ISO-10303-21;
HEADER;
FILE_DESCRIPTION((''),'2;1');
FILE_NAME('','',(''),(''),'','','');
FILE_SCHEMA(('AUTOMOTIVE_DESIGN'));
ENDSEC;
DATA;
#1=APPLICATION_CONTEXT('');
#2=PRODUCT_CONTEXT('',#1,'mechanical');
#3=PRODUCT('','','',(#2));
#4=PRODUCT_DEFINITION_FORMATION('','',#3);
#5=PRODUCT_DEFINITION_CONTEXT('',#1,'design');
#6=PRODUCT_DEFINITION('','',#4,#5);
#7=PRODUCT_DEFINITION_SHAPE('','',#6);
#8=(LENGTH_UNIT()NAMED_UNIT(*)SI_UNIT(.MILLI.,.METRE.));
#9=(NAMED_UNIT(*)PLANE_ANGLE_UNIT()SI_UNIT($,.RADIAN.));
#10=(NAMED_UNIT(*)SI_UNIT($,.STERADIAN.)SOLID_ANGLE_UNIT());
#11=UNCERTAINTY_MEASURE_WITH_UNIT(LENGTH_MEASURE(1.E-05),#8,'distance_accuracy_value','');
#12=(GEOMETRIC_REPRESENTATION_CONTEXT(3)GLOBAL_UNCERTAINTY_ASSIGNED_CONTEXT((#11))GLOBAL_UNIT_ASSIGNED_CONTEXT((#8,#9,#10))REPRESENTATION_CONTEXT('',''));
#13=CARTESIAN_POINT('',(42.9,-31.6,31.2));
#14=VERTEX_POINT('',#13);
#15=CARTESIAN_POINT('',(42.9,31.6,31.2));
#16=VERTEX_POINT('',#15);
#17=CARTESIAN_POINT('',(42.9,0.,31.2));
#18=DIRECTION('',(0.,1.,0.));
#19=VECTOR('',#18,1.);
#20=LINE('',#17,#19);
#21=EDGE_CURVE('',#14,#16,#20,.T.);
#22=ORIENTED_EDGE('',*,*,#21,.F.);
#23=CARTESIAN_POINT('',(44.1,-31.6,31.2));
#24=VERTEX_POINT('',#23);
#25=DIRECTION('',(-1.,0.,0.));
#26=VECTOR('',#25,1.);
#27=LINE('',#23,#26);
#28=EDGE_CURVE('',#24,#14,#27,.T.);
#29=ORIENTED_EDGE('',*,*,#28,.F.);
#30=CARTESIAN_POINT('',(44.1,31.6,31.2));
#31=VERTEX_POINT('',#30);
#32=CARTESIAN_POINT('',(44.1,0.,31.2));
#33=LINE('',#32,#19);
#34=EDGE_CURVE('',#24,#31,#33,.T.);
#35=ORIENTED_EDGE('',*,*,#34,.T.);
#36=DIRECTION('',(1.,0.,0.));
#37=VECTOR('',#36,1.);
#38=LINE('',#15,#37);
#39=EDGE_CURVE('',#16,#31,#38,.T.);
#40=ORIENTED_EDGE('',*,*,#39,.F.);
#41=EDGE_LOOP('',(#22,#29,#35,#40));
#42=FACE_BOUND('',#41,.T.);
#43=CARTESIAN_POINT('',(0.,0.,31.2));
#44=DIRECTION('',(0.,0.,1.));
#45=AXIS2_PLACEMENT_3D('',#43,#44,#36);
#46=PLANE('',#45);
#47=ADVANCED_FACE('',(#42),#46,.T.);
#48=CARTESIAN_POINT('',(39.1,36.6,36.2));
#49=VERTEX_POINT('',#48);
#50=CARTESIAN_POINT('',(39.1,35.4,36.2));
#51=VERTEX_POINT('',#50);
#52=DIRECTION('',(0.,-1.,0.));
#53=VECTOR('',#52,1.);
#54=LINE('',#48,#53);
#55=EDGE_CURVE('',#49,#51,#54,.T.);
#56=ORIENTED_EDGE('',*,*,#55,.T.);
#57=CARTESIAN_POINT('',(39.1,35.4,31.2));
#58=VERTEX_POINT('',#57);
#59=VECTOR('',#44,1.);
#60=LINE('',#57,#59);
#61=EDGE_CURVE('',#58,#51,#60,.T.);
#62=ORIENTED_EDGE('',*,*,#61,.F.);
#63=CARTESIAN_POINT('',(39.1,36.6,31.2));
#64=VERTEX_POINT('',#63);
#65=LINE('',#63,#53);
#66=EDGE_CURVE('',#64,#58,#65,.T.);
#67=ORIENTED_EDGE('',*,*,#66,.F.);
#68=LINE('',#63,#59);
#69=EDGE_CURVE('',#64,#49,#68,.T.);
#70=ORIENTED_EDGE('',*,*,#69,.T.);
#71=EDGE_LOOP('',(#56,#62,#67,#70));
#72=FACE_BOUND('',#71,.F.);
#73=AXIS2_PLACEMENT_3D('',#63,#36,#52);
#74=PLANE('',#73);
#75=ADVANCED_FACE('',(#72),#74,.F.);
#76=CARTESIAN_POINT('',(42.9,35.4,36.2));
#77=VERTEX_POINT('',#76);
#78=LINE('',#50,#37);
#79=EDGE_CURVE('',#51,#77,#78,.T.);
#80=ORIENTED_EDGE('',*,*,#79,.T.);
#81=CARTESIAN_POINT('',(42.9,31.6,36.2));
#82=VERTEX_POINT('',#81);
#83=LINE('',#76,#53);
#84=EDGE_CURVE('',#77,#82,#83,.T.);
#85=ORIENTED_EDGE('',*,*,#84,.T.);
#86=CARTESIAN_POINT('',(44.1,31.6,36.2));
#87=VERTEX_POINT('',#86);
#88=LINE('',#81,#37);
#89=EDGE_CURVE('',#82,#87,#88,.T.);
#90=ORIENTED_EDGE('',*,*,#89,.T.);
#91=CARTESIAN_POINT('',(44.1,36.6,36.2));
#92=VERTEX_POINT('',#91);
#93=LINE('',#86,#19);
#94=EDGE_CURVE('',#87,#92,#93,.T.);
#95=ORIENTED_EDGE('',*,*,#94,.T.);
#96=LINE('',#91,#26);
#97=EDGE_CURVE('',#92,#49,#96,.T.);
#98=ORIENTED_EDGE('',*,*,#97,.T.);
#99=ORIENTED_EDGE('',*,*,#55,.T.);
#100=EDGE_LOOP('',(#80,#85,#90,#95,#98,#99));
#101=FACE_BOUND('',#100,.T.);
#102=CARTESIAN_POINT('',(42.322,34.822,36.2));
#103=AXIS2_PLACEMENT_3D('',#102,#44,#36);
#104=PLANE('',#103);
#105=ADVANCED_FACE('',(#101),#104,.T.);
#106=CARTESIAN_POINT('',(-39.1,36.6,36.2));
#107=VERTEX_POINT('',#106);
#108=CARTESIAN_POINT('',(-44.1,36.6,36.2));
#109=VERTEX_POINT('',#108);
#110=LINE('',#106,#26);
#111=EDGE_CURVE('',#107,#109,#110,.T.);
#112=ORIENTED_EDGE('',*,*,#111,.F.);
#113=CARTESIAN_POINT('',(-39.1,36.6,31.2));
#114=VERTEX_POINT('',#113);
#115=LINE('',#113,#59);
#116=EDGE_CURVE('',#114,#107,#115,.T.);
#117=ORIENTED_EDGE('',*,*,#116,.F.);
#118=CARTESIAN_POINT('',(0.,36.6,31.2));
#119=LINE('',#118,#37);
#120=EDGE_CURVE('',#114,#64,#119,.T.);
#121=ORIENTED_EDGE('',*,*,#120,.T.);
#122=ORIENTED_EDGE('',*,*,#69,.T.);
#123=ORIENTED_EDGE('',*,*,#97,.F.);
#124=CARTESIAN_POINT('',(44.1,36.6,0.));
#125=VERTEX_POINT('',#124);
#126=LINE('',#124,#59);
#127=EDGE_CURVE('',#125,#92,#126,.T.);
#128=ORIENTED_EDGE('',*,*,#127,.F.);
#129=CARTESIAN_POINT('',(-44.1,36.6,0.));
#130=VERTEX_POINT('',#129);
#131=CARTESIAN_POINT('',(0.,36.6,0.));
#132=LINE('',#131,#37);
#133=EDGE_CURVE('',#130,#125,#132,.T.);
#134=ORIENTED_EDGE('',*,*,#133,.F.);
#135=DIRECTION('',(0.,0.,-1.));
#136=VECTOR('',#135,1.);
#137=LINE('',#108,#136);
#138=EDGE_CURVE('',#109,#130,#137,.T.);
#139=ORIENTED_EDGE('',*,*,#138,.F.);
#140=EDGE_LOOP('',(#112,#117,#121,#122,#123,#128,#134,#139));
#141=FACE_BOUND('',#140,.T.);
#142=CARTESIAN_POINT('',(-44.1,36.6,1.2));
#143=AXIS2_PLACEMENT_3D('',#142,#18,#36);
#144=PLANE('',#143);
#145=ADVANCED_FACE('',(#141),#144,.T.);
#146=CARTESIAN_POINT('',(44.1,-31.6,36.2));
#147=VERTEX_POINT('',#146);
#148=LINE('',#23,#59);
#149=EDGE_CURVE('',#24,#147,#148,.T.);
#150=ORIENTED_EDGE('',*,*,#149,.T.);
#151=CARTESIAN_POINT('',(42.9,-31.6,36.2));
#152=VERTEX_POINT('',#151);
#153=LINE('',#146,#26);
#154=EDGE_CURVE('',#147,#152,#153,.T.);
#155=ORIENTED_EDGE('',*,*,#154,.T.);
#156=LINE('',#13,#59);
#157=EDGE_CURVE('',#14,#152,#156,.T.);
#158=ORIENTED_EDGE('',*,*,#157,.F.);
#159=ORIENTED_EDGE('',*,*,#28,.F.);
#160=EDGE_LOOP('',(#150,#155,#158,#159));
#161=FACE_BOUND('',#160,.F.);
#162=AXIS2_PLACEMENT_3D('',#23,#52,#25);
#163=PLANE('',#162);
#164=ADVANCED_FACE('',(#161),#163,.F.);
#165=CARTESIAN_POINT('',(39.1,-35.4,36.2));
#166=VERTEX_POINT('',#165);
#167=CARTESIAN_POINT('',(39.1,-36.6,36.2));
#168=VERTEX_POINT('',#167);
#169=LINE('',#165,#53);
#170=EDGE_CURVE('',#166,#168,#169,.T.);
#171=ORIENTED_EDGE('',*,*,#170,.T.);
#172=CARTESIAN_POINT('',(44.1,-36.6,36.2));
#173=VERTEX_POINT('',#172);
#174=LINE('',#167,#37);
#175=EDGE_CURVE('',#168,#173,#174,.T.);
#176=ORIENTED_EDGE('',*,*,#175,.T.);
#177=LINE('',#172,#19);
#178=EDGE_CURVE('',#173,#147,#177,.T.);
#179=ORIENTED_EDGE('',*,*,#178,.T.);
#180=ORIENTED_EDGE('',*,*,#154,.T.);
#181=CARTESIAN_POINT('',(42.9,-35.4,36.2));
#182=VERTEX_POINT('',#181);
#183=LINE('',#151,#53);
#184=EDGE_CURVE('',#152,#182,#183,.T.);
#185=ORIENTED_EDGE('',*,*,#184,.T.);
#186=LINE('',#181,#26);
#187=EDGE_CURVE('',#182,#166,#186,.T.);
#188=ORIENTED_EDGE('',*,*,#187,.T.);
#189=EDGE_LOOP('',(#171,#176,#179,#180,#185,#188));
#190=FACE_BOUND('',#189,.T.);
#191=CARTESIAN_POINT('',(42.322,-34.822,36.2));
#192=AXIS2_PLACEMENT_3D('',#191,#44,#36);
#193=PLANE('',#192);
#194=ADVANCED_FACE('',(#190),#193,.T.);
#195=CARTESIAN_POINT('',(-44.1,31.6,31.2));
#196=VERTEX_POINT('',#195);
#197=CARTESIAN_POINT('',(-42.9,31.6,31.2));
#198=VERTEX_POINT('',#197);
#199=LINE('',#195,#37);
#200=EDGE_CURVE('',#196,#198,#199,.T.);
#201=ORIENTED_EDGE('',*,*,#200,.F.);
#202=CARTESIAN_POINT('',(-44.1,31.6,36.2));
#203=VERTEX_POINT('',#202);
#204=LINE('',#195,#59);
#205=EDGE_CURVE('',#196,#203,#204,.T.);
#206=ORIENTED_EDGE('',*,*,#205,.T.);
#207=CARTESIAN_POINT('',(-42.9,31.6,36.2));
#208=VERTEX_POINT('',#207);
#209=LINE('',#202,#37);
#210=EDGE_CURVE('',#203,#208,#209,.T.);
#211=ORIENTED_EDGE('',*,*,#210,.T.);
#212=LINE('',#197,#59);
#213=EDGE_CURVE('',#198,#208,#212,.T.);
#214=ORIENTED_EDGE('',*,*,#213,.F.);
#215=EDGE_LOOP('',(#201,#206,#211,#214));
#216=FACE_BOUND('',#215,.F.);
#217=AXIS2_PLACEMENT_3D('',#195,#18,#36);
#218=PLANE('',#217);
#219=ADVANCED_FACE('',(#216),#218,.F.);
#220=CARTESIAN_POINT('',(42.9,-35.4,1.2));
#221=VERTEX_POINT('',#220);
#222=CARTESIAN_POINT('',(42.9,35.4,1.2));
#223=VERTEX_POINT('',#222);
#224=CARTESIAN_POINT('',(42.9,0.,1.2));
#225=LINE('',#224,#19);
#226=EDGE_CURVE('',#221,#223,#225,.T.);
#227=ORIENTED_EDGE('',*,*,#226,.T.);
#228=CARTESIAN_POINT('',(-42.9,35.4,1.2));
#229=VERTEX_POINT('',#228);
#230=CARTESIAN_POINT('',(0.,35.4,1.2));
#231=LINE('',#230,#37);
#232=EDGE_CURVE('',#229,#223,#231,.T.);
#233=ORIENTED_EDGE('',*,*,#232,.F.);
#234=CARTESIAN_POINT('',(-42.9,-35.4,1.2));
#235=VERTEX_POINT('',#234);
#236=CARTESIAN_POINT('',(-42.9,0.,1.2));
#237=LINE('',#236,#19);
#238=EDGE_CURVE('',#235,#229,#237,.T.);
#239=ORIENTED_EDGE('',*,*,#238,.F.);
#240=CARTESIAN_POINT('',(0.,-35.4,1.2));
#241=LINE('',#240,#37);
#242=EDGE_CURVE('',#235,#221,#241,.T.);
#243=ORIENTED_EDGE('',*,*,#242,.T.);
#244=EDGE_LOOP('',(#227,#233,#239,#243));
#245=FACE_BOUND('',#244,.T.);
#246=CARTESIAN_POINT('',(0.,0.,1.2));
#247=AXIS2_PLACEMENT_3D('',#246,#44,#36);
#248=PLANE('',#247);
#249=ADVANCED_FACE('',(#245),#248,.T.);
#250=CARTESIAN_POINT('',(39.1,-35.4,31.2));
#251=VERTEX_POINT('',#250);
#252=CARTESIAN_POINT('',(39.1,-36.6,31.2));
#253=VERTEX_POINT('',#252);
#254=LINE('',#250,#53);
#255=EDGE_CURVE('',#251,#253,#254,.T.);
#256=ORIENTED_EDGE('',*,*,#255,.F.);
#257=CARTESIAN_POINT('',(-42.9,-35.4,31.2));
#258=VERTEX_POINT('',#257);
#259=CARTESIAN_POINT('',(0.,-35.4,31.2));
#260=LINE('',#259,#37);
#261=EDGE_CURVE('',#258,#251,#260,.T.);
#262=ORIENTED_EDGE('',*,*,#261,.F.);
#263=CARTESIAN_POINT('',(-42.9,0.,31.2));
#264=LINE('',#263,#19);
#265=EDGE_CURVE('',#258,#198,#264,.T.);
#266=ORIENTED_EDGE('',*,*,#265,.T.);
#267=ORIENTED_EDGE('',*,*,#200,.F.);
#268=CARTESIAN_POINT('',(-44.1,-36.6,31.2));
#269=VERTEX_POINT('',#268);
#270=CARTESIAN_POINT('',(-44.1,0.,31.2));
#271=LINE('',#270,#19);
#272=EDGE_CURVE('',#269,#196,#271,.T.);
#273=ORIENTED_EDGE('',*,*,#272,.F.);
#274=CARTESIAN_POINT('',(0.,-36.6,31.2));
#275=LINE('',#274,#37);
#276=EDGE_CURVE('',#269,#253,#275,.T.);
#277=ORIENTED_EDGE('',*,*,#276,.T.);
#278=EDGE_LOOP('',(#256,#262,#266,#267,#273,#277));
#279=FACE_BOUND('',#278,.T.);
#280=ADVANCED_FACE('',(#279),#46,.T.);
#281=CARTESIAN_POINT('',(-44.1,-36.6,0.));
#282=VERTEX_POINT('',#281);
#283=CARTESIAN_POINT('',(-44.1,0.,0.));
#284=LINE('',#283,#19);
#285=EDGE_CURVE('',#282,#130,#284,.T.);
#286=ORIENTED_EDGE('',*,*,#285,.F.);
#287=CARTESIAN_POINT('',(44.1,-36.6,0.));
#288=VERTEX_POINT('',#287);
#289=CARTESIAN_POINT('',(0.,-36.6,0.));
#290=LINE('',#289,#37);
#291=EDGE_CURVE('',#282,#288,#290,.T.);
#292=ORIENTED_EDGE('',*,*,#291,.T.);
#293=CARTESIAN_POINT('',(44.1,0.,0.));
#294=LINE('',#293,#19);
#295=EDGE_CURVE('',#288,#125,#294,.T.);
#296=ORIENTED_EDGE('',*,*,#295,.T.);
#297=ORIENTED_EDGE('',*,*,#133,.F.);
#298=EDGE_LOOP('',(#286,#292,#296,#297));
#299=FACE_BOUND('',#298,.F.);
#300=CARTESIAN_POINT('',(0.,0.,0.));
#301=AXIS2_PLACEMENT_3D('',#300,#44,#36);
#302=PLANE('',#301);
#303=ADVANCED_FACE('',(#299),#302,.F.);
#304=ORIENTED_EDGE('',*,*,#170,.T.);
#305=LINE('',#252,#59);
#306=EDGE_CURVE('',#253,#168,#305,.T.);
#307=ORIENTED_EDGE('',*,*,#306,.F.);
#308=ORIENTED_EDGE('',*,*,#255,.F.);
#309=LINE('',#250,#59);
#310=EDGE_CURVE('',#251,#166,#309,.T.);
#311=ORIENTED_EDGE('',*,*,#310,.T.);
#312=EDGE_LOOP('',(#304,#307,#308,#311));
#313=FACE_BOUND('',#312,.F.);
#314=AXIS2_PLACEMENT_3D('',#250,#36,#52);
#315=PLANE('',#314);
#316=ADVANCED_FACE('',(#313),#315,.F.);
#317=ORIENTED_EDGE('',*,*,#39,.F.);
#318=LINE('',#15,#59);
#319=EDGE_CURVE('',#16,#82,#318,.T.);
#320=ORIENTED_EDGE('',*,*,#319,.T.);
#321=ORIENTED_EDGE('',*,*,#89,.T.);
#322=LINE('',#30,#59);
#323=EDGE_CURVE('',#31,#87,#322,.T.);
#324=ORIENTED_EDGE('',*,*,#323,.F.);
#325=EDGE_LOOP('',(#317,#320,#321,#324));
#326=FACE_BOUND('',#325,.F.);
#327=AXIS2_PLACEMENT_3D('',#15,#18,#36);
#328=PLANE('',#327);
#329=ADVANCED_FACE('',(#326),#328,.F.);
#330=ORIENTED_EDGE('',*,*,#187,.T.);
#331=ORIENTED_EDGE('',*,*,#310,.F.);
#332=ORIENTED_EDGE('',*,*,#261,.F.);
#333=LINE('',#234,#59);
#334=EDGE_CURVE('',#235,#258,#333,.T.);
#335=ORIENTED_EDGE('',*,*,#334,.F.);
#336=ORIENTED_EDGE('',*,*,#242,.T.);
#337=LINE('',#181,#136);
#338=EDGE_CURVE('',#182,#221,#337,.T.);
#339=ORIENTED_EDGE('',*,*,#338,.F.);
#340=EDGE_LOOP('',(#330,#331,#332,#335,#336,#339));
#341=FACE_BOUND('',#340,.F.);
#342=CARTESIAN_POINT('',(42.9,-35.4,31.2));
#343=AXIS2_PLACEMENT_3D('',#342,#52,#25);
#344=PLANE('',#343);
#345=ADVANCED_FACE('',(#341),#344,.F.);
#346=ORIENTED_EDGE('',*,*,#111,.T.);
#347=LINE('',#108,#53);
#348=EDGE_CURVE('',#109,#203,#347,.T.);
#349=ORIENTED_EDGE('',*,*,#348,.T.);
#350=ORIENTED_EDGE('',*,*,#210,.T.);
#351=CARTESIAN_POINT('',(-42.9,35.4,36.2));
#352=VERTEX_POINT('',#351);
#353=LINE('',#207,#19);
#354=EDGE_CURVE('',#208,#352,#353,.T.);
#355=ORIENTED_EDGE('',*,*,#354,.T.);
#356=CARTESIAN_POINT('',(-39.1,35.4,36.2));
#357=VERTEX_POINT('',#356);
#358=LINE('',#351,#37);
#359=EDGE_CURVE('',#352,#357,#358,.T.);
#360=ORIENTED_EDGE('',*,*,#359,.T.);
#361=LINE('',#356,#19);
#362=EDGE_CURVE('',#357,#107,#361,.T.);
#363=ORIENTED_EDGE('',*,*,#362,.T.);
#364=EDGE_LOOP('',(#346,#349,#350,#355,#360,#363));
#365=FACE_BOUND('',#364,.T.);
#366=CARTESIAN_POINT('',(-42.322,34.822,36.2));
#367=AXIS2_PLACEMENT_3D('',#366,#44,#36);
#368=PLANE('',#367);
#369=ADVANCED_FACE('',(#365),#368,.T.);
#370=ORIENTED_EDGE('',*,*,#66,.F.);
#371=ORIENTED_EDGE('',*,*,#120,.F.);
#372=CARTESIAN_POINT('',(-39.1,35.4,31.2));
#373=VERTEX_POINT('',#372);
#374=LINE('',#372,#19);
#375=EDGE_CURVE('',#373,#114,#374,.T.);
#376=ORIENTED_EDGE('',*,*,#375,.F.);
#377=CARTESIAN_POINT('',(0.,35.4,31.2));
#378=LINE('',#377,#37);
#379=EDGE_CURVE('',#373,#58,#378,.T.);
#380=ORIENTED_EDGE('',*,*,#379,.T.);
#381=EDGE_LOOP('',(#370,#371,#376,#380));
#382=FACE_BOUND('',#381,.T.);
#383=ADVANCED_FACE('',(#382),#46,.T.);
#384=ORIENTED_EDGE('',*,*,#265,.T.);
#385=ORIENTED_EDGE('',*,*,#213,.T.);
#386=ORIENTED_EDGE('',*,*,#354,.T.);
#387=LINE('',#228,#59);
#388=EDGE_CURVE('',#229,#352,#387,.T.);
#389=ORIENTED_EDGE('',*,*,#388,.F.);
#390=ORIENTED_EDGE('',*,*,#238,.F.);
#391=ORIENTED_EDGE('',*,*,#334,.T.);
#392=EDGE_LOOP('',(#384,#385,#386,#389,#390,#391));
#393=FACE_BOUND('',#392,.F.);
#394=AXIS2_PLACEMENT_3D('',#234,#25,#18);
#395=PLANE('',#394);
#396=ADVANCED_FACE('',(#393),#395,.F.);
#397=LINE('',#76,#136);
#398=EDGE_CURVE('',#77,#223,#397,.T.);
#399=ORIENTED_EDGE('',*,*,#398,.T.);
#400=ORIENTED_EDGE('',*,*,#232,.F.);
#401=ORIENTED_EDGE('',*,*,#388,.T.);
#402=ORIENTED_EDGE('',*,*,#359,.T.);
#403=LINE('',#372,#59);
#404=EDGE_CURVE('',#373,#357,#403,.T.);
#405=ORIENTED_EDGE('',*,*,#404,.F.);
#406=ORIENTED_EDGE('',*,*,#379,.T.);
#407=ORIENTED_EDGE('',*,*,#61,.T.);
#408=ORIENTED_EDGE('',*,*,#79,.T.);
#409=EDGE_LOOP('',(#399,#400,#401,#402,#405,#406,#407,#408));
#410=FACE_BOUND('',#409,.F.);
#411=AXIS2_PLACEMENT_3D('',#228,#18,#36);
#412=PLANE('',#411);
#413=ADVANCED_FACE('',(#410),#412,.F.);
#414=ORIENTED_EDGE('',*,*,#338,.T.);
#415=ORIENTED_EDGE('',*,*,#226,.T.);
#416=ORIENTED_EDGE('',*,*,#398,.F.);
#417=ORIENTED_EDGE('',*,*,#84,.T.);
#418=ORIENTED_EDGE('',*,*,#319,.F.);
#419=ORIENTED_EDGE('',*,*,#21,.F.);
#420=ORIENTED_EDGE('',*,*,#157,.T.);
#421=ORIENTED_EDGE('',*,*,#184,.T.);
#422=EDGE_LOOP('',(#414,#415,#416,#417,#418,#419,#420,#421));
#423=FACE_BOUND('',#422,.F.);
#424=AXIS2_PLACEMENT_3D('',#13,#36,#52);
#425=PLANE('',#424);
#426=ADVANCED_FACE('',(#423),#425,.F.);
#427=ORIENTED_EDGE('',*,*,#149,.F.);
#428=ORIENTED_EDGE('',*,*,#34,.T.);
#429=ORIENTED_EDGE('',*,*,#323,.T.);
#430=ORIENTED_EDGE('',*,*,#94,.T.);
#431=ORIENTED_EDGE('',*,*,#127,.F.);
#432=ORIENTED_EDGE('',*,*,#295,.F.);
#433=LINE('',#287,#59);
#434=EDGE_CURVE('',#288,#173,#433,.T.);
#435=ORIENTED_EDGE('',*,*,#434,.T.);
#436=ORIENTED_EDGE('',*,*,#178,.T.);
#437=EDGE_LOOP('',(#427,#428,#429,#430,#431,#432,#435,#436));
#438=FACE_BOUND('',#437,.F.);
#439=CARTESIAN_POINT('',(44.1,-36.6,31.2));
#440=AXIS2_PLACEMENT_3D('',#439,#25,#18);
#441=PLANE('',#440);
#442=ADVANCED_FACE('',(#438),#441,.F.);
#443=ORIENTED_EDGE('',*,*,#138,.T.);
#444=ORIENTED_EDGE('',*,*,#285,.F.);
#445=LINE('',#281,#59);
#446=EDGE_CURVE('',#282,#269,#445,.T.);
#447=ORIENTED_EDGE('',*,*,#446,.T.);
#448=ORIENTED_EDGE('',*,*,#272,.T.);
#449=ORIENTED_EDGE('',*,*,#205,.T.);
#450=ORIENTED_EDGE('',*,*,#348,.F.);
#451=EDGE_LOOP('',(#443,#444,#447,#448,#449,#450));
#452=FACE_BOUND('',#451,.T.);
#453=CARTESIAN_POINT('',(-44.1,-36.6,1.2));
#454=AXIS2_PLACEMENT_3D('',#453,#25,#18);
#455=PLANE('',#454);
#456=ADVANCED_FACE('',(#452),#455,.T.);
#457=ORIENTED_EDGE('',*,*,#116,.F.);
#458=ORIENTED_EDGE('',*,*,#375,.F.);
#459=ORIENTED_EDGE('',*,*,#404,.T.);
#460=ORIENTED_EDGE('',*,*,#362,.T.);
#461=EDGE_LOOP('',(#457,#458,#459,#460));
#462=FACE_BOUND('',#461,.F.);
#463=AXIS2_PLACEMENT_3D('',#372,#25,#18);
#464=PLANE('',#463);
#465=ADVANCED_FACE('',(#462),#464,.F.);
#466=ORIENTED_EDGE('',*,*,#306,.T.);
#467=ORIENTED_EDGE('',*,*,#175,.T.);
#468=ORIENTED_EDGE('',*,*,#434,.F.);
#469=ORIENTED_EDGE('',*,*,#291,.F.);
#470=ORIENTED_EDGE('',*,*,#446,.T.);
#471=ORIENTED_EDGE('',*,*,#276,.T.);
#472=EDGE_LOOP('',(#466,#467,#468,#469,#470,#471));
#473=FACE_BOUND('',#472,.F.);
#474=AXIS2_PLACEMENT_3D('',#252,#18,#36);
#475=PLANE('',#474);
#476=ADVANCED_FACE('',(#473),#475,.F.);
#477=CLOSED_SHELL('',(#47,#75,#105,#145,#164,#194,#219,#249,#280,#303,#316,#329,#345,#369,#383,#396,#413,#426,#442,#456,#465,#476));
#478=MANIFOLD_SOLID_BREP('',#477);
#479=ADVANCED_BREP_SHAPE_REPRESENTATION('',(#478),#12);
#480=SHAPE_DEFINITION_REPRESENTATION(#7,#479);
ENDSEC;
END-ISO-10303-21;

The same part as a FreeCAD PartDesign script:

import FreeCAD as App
import Part
import Sketcher


def add_polygon(sketch, points):
    """Adds a closed chain of lines whose ends are joined by coincident constraints."""
    first, n = sketch.GeometryCount, len(points)
    for a, b in zip(points, points[1:] + points[:1]):
        sketch.addGeometry(Part.LineSegment(App.Vector(*a, 0), App.Vector(*b, 0)), False)
    for i in range(n):
        sketch.addConstraint(Sketcher.Constraint("Coincident", first + i, 2, first + (i + 1) % n, 1))

doc = App.newDocument("Part")
body = doc.addObject("PartDesign::Body", "Body")

# Sketch on XY plane
sketch1 = body.newObject("Sketcher::SketchObject", "Sketch")
sketch1.AttachmentSupport = (doc.getObject("XY_Plane"), [""])
sketch1.MapMode = "FlatFace"
add_polygon(sketch1, [(-44, 37), (-44, -37), (44, -37), (44, 37)])  # lines 0-3
sketch1.addConstraint([
    Sketcher.Constraint("Vertical", 0),
    Sketcher.Constraint("Horizontal", 1),
    Sketcher.Constraint("Vertical", 2),
    Sketcher.Constraint("Horizontal", 3),
    Sketcher.Constraint("Symmetric", 0, 2, 2, 2, -1, 1),
    Sketcher.Constraint("DistanceX", 1, 1, 1, 2, 88.2),
    Sketcher.Constraint("DistanceY", 0, 2, 0, 1, 73.2),
])
pad1 = body.newObject("PartDesign::Pad", "Pad")
pad1.Profile = sketch1
pad1.Length = 1.2

# Sketch on XY plane
sketch2 = body.newObject("Sketcher::SketchObject", "Sketch001")
sketch2.AttachmentSupport = (doc.getObject("XY_Plane"), [""])
sketch2.MapMode = "FlatFace"
sketch2.AttachmentOffset = App.Placement(App.Vector(0, 0, 1.2), App.Rotation())
add_polygon(sketch2, [(-44, 37), (-44, -37), (44, -37), (44, 37)])  # lines 0-3
add_polygon(sketch2, [(43, -35), (-43, -35), (-43, 35), (43, 35)])  # lines 4-7
sketch2.addConstraint([
    Sketcher.Constraint("Vertical", 0),
    Sketcher.Constraint("Horizontal", 1),
    Sketcher.Constraint("Vertical", 2),
    Sketcher.Constraint("Horizontal", 3),
    Sketcher.Constraint("Horizontal", 4),
    Sketcher.Constraint("Vertical", 5),
    Sketcher.Constraint("Horizontal", 6),
    Sketcher.Constraint("Vertical", 7),
    Sketcher.Constraint("Symmetric", 0, 2, 2, 2, -1, 1),
    Sketcher.Constraint("Symmetric", 4, 2, 6, 2, -1, 1),
    Sketcher.Constraint("DistanceX", 1, 1, 1, 2, 88.2),
    Sketcher.Constraint("DistanceX", 4, 2, 4, 1, 85.8),
    Sketcher.Constraint("DistanceY", 0, 2, 0, 1, 73.2),
    Sketcher.Constraint("DistanceY", 5, 1, 5, 2, 70.8),
])
pad2 = body.newObject("PartDesign::Pad", "Pad001")
pad2.Profile = sketch2
pad2.Length = 30

# Sketch on XY plane
sketch3 = body.newObject("Sketcher::SketchObject", "Sketch002")
sketch3.AttachmentSupport = (doc.getObject("XY_Plane"), [""])
sketch3.MapMode = "FlatFace"
sketch3.AttachmentOffset = App.Placement(App.Vector(0, 0, 31.2), App.Rotation())
add_polygon(sketch3, [(39.1, -36.6), (44.1, -36.6), (44.1, -31.6), (42.9, -31.6), (42.9, -35.4), (39.1, -35.4)])  # lines 0-5
add_polygon(sketch3, [(42.9, 31.6), (44.1, 31.6), (44.1, 36.6), (39.1, 36.6), (39.1, 35.4), (42.9, 35.4)])  # lines 6-11
add_polygon(sketch3, [(-44.1, 31.6), (-42.9, 31.6), (-42.9, 35.4), (-39.1, 35.4), (-39.1, 36.6), (-44.1, 36.6)])  # lines 12-17
sketch3.addConstraint([
    Sketcher.Constraint("Horizontal", 0),
    Sketcher.Constraint("Vertical", 1),
    Sketcher.Constraint("Horizontal", 2),
    Sketcher.Constraint("Vertical", 3),
    Sketcher.Constraint("Horizontal", 4),
    Sketcher.Constraint("Vertical", 5),
    Sketcher.Constraint("Horizontal", 6),
    Sketcher.Constraint("Vertical", 7),
    Sketcher.Constraint("Horizontal", 8),
    Sketcher.Constraint("Vertical", 9),
    Sketcher.Constraint("Horizontal", 10),
    Sketcher.Constraint("Vertical", 11),
    Sketcher.Constraint("Horizontal", 12),
    Sketcher.Constraint("Vertical", 13),
    Sketcher.Constraint("Horizontal", 14),
    Sketcher.Constraint("Vertical", 15),
    Sketcher.Constraint("Horizontal", 16),
    Sketcher.Constraint("Vertical", 17),
    Sketcher.Constraint("Symmetric", 2, 2, 12, 2, -1, 1),
    Sketcher.Constraint("Symmetric", 4, 2, 14, 2, -1, 1),
    Sketcher.Constraint("Symmetric", 0, 2, 16, 2, -1, 1),
    Sketcher.Constraint("Symmetric", 11, 2, 12, 2, -2),
    Sketcher.Constraint("Symmetric", 9, 2, 14, 2, -2),
    Sketcher.Constraint("Symmetric", 7, 2, 16, 2, -2),
    Sketcher.Constraint("Equal", 16, 1),
    Sketcher.Constraint("Equal", 14, 3),
    Sketcher.Constraint("DistanceX", 0, 1, 0, 2, 5.0),
    Sketcher.Constraint("DistanceX", 2, 2, 2, 1, 1.2),
    Sketcher.Constraint("DistanceY", 3, 2, 6, 2, 67.0),
    Sketcher.Constraint("DistanceX", 12, 2, 9, 2, 82.0),
])
pad3 = body.newObject("PartDesign::Pad", "Pad002")
pad3.Profile = sketch3
pad3.Length = 5

doc.recompute()
